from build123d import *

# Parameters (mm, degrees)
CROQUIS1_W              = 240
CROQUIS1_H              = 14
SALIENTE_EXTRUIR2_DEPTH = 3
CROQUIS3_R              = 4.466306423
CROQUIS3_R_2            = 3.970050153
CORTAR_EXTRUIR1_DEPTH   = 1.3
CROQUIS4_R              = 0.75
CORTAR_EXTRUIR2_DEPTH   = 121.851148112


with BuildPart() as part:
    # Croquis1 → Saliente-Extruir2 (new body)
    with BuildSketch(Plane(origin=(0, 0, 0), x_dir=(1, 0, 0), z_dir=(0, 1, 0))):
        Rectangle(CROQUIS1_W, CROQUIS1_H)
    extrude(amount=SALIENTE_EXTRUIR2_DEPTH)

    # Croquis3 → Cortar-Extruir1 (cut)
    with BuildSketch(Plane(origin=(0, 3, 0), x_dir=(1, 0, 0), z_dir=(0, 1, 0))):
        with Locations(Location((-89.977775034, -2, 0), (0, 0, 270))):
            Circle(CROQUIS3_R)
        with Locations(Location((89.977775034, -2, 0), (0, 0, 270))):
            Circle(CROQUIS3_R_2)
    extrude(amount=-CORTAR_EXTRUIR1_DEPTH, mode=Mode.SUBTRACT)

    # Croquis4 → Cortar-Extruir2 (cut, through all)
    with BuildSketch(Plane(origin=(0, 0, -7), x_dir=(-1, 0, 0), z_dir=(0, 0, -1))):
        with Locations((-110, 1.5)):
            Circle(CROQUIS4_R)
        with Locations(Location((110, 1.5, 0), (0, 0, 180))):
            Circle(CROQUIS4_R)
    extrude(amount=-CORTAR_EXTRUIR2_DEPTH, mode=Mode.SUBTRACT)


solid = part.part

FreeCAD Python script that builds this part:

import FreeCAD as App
import Part
import Sketcher
Q = App.Units.Quantity


def add_polygon(sketch, points):
    """Adds a closed chain of lines whose ends are joined by coincident constraints."""
    first, n = sketch.GeometryCount, len(points)
    for a, b in zip(points, points[1:] + points[:1]):
        sketch.addGeometry(Part.LineSegment(App.Vector(*a, 0), App.Vector(*b, 0)), False)
    for i in range(n):
        sketch.addConstraint(Sketcher.Constraint("Coincident", first + i, 2, first + (i + 1) % n, 1))

doc = App.newDocument("Part")
body = doc.addObject("PartDesign::Body", "Body")

# Sketch on XZ plane
sketch1 = doc.addObject("Sketcher::SketchObject", "Sketch")
body.addObject(sketch1)
sketch1.AttachmentSupport = (doc.XZ_Plane, [""])
sketch1.MapMode = "FlatFace"
add_polygon(sketch1, [(-120, -7), (-120, 7), (120, 7), (120, -7)])  # lines 0-3
sketch1.addConstraint([
    Sketcher.Constraint("Vertical", 0),
    Sketcher.Constraint("Horizontal", 1),
    Sketcher.Constraint("Vertical", 2),
    Sketcher.Constraint("Horizontal", 3),
    Sketcher.Constraint("Symmetric", 0, 2, 2, 2, -1, 1),
    Sketcher.Constraint("DistanceX", 1, 1, 1, 2, Q("240 mm")),
    Sketcher.Constraint("DistanceY", 0, 1, 0, 2, Q("14 mm")),
])
pad1 = doc.addObject("PartDesign::Pad", "Pad")
body.addObject(pad1)
pad1.Profile = sketch1
pad1.Length = 3
pad1.Reversed = True

# Sketch on XZ plane
sketch2 = doc.addObject("Sketcher::SketchObject", "Sketch001")
body.addObject(sketch2)
sketch2.AttachmentSupport = (doc.XZ_Plane, [""])
sketch2.MapMode = "FlatFace"
sketch2.AttachmentOffset = App.Placement(App.Vector(0, 0, -3), App.Rotation())
sketch2.addGeometry([
    Part.Circle(App.Vector(-90, 2, 0), App.Vector(0, 0, 1), 4.5),
    Part.Circle(App.Vector(90, 2, 0), App.Vector(0, 0, 1), 4),
], False)
sketch2.addConstraint([
    Sketcher.Constraint("Symmetric", 0, 3, 1, 3, -2),
    Sketcher.Constraint("DistanceY", -1, 1, 0, 3, Q("2 mm")),
    Sketcher.Constraint("Diameter", 1, Q("7.9401 mm")),
    Sketcher.Constraint("Diameter", 0, Q("8.932613 mm")),
    Sketcher.Constraint("DistanceX", 0, 3, 1, 3, Q("179.95555 mm")),
])
pocket1 = doc.addObject("PartDesign::Pocket", "Pocket")
body.addObject(pocket1)
pocket1.Profile = sketch2
pocket1.Length = 1.3
pocket1.Reversed = True

# Sketch on XY plane
sketch3 = doc.addObject("Sketcher::SketchObject", "Sketch002")
body.addObject(sketch3)
sketch3.AttachmentSupport = (doc.XY_Plane, [""])
sketch3.MapMode = "FlatFace"
sketch3.AttachmentOffset = App.Placement(App.Vector(0, 0, -7), App.Rotation())
sketch3.addGeometry([
    Part.Circle(App.Vector(110, 1.5, 0), App.Vector(0, 0, 1), 0.8),
    Part.Circle(App.Vector(-110, 1.5, 0), App.Vector(0, 0, 1), 0.8),
], False)
sketch3.addConstraint([
    Sketcher.Constraint("Equal", 0, 1),
    Sketcher.Constraint("Symmetric", 0, 3, 1, 3, -2),
    Sketcher.Constraint("Diameter", 0, Q("1.5 mm")),
    Sketcher.Constraint("DistanceX", -1, 1, 0, 3, Q("110 mm")),
    Sketcher.Constraint("DistanceY", -1, 1, 0, 3, Q("1.5 mm")),
])
pocket2 = doc.addObject("PartDesign::Pocket", "Pocket001")
body.addObject(pocket2)
pocket2.Profile = sketch3
pocket2.Type = "ThroughAll"
pocket2.Reversed = True

doc.recompute()
